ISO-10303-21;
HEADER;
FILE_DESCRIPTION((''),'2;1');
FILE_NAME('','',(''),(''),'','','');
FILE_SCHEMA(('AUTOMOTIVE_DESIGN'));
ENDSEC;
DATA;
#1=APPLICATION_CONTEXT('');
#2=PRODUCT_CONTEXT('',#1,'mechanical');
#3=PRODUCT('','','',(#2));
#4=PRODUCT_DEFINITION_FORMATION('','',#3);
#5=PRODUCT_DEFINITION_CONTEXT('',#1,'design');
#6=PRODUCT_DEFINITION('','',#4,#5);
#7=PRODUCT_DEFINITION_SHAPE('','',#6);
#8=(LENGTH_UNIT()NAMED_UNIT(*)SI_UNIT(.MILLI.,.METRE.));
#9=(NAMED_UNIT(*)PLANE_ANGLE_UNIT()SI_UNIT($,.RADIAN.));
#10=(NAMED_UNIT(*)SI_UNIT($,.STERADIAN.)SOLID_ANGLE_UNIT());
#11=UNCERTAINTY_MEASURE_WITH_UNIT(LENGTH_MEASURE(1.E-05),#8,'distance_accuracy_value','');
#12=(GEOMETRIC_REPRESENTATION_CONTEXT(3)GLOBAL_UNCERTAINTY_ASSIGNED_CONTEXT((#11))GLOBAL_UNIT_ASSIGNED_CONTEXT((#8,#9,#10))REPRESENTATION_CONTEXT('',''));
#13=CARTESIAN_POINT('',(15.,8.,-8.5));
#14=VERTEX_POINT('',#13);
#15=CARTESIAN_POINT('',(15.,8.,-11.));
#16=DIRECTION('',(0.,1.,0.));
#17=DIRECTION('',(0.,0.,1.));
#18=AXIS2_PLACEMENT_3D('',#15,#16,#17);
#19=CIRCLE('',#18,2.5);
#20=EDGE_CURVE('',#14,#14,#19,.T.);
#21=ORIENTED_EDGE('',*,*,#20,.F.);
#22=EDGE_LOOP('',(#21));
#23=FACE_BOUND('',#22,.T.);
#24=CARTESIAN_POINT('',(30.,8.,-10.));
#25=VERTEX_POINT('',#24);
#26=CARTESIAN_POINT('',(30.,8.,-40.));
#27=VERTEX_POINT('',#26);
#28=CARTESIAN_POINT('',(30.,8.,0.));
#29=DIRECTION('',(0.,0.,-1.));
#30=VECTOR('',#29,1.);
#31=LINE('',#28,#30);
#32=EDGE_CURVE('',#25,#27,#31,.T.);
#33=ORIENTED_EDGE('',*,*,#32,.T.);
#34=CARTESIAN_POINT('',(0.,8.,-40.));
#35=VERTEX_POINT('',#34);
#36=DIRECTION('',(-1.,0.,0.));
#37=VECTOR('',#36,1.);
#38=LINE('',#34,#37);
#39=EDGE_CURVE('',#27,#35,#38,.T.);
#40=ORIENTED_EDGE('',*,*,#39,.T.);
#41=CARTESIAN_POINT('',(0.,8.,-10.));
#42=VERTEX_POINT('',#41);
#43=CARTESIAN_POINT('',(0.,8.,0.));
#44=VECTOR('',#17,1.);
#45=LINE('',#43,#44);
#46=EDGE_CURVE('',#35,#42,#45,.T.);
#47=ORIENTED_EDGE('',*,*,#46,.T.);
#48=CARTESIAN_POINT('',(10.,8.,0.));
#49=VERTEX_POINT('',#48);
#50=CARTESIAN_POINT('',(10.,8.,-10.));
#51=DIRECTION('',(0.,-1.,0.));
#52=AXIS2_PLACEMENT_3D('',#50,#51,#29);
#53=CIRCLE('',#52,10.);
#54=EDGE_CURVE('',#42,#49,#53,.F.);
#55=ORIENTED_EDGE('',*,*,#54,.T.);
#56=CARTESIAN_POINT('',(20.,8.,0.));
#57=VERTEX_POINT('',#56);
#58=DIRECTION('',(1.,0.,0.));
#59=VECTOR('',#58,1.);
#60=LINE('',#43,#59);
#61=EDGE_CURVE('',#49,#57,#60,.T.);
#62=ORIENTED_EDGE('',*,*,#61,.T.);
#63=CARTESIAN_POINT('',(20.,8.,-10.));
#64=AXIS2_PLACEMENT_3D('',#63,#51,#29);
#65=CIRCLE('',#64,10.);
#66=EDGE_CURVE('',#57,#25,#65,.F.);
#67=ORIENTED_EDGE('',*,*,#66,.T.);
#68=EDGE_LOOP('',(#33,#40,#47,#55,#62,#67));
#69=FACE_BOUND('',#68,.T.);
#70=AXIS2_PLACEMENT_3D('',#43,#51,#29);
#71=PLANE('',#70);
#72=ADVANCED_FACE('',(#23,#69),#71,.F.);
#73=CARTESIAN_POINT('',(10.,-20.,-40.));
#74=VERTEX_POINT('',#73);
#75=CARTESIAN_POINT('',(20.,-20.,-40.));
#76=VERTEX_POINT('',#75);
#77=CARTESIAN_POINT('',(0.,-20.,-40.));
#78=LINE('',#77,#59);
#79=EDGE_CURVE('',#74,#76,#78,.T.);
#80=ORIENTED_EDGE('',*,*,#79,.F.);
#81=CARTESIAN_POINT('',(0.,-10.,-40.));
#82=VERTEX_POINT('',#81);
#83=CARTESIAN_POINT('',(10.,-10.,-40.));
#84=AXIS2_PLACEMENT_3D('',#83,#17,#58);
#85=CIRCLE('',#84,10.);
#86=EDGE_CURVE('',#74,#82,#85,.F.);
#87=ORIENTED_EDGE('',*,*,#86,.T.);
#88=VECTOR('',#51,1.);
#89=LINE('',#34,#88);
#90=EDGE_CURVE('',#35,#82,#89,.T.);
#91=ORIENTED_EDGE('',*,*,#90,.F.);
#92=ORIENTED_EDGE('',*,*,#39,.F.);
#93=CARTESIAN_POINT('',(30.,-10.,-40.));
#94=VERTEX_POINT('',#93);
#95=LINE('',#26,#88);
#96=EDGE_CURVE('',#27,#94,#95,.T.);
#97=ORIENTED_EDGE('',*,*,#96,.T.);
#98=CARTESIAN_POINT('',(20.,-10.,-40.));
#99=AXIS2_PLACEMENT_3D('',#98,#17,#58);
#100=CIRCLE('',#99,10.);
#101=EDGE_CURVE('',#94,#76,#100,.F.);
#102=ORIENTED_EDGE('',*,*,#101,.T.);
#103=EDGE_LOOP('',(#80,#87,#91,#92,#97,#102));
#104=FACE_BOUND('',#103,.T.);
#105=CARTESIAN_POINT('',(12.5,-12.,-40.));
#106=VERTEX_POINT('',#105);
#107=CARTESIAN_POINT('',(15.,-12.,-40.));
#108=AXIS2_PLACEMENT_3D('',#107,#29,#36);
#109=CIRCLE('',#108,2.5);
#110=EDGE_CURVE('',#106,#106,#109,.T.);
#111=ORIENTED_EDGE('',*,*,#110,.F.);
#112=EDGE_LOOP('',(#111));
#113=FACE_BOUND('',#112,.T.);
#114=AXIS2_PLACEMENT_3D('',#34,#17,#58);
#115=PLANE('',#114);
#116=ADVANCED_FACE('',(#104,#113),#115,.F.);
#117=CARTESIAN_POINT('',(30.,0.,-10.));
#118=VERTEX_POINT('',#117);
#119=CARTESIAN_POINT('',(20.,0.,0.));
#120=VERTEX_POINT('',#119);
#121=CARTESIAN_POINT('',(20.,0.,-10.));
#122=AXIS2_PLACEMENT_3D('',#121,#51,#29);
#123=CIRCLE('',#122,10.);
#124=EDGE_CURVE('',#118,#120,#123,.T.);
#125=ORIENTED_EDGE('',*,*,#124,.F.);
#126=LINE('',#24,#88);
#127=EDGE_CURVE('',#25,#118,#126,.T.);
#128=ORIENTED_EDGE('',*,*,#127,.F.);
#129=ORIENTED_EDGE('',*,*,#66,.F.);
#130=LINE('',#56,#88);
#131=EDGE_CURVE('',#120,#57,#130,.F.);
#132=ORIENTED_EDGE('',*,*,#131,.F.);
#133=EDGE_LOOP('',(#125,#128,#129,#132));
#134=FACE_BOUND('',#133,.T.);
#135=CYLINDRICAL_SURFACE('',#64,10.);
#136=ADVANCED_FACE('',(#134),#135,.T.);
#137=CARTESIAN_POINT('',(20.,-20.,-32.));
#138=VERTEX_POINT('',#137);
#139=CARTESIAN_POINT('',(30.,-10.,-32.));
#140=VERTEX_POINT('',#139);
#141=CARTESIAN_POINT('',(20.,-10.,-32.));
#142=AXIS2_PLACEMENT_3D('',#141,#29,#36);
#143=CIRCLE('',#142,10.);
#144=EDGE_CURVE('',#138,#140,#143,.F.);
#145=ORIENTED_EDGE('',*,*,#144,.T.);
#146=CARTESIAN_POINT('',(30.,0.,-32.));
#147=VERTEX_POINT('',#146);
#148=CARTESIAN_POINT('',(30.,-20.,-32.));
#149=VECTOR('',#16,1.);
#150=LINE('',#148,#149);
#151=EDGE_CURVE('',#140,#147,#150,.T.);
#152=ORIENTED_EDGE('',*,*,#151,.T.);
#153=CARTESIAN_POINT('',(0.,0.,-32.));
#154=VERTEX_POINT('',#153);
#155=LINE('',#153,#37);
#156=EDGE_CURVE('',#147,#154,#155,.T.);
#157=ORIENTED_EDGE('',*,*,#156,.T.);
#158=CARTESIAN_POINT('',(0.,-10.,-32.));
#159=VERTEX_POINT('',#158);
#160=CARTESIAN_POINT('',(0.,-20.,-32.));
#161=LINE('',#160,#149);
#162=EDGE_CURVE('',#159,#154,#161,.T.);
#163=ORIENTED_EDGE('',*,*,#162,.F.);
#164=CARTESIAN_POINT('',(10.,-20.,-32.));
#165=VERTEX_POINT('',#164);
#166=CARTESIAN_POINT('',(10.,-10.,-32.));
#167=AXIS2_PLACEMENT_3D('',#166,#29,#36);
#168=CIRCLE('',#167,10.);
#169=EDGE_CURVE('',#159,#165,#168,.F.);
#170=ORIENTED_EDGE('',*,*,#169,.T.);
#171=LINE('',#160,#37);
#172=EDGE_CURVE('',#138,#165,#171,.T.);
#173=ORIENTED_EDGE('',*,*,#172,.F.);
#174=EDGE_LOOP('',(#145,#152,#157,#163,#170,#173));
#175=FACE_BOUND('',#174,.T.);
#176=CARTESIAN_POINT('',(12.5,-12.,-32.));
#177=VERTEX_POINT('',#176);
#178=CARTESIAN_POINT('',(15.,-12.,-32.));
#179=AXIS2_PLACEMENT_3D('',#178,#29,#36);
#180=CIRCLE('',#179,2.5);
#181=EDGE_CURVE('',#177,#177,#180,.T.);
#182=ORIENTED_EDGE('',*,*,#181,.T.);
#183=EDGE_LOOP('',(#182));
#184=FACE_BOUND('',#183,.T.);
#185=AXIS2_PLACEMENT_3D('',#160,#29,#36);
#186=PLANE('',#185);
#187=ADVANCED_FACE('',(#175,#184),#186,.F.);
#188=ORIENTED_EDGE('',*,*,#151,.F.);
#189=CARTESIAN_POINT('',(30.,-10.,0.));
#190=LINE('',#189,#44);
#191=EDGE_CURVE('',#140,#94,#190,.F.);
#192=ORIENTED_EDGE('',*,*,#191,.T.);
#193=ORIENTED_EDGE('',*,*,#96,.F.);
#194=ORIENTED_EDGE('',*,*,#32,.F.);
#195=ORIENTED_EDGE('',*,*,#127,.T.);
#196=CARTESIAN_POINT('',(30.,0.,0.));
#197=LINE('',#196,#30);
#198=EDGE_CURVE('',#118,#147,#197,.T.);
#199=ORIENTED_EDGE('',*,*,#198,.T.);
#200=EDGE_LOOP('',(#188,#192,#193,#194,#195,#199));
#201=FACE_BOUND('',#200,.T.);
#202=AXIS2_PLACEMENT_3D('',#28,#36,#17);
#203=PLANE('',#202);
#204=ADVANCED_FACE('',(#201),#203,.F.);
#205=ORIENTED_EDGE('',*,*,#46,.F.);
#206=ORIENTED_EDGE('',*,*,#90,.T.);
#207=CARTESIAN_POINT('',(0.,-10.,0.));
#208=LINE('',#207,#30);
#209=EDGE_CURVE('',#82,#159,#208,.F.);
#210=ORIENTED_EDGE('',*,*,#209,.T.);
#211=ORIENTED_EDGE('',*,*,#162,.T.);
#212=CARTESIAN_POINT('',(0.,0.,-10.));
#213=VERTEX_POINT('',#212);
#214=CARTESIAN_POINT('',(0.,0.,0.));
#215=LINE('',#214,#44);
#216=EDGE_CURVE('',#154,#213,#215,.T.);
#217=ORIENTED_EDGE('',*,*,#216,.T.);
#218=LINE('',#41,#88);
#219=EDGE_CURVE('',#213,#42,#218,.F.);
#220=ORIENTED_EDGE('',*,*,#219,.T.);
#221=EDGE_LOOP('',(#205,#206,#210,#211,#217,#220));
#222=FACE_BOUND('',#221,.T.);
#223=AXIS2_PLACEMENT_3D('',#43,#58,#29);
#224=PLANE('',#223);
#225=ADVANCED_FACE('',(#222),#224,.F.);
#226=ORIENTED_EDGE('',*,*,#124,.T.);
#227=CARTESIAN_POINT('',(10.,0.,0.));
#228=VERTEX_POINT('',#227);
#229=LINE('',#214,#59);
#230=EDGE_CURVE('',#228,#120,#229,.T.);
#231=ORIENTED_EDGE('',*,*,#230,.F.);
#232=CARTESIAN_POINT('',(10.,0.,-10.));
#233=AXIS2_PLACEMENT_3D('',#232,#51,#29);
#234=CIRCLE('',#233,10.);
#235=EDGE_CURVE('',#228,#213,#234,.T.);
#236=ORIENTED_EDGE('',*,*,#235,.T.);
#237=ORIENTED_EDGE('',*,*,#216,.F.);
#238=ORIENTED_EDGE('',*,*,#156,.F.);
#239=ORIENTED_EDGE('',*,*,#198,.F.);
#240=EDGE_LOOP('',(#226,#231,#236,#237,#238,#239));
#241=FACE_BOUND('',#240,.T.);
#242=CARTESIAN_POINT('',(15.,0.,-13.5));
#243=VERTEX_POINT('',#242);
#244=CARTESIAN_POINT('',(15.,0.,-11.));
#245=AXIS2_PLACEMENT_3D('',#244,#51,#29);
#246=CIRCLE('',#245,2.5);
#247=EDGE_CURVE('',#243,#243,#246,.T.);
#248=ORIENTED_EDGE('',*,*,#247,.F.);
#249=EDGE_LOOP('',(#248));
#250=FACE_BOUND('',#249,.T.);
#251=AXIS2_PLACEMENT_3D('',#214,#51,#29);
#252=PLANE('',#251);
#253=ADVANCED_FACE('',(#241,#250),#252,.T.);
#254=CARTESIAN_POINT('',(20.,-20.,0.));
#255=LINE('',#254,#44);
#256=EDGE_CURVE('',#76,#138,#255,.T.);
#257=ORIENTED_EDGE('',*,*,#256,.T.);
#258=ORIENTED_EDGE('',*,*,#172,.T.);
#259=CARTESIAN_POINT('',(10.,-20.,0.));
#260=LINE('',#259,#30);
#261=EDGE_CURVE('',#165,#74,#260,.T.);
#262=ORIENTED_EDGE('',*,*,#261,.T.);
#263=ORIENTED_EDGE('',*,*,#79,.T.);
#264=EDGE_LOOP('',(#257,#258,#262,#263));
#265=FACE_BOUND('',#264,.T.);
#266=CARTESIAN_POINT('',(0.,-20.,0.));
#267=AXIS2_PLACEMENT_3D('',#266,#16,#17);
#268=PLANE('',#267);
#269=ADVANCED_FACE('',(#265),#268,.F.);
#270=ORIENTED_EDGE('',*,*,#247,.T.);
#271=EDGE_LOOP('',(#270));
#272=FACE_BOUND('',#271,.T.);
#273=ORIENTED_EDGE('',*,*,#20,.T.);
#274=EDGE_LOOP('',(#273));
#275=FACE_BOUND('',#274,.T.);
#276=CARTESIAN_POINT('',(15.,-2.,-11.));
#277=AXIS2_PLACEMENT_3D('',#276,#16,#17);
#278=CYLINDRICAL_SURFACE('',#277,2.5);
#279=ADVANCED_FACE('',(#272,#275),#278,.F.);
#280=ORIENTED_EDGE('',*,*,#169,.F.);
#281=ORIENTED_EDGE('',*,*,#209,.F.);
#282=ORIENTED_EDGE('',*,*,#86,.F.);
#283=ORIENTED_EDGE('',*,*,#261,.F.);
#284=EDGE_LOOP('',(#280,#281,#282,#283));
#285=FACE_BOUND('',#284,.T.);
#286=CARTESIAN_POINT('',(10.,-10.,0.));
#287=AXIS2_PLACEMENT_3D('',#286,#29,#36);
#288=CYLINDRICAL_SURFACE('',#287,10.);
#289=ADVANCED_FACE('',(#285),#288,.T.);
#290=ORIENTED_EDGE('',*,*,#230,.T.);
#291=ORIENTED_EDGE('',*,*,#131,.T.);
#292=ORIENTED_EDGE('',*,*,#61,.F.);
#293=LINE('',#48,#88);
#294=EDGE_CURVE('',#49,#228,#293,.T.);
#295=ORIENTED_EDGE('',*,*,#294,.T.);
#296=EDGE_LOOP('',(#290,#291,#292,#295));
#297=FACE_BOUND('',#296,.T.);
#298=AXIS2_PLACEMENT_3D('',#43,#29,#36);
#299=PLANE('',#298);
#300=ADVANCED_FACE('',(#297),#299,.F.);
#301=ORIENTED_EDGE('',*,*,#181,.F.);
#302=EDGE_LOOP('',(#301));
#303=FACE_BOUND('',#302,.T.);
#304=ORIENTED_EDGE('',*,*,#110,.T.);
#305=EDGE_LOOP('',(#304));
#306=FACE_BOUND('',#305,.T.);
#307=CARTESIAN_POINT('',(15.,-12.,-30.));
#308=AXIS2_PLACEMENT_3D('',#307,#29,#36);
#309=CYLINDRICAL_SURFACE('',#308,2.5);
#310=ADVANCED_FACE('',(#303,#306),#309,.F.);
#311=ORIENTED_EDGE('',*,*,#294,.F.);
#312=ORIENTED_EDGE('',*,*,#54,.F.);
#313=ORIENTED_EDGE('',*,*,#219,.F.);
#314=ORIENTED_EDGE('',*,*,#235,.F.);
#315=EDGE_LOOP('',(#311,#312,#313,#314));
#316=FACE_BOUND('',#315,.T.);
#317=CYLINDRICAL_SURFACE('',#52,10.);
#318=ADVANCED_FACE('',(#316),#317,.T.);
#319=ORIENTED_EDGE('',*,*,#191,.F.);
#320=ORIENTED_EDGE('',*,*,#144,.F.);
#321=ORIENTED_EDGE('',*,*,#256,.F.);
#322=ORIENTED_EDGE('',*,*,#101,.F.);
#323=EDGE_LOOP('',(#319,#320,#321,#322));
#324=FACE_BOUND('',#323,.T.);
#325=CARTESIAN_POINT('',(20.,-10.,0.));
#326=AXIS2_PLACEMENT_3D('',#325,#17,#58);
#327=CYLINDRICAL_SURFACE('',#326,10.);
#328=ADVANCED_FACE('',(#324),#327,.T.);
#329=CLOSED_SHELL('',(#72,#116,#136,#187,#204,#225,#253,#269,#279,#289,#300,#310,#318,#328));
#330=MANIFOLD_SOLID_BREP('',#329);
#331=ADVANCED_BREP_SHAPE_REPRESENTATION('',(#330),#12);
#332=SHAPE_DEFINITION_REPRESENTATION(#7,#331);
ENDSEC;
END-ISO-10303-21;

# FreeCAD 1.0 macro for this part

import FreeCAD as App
import Part
import Sketcher
Q = App.Units.Quantity


def edges_at(feature, points):
    """Names of the edges that pass closest to the given points."""
    edges = feature.Shape.Edges
    near = lambda p: min(range(len(edges)), key=lambda i: edges[i].distToShape(Part.Vertex(*p))[0])
    return sorted({f"Edge{near(p) + 1}" for p in points})


def add_polygon(sketch, points):
    """Adds a closed chain of lines whose ends are joined by coincident constraints."""
    first, n = sketch.GeometryCount, len(points)
    for a, b in zip(points, points[1:] + points[:1]):
        sketch.addGeometry(Part.LineSegment(App.Vector(*a, 0), App.Vector(*b, 0)), False)
    for i in range(n):
        sketch.addConstraint(Sketcher.Constraint("Coincident", first + i, 2, first + (i + 1) % n, 1))

doc = App.newDocument("Part")
body = doc.addObject("PartDesign::Body", "Body")

sketch1 = body.newObject("Sketcher::SketchObject", "Sketch")
sketch1.AttachmentSupport = (doc.getObject("XZ_Plane"), [""])
sketch1.MapMode = "FlatFace"
add_polygon(sketch1, [(0, -40), (0, 0), (30, 0), (30, -40)])
sketch1.addConstraint(Sketcher.Constraint("Vertical", 0))
sketch1.addConstraint(Sketcher.Constraint("Horizontal", 1))
sketch1.addConstraint(Sketcher.Constraint("Vertical", 2))
sketch1.addConstraint(Sketcher.Constraint("Horizontal", 3))
sketch1.addConstraint(Sketcher.Constraint("Coincident", 0, 2, -1, 1))
sketch1.addConstraint(Sketcher.Constraint("DistanceX", 1, 1, 1, 2, Q("30 mm")))
sketch1.addConstraint(Sketcher.Constraint("DistanceY", 0, 1, 0, 2, Q("40 mm")))
pad1 = body.newObject("PartDesign::Pad", "Pad")
pad1.Profile = sketch1
pad1.Length = 8
pad1.Reversed = True

sketch2 = body.newObject("Sketcher::SketchObject", "Sketch001")
sketch2.AttachmentSupport = (doc.getObject("XZ_Plane"), [""])
sketch2.MapMode = "FlatFace"
add_polygon(sketch2, [(0, -32), (0, -40), (30, -40), (30, -32)])
sketch2.addConstraint(Sketcher.Constraint("Vertical", 0))
sketch2.addConstraint(Sketcher.Constraint("Horizontal", 1))
sketch2.addConstraint(Sketcher.Constraint("Vertical", 2))
sketch2.addConstraint(Sketcher.Constraint("Horizontal", 3))
sketch2.addConstraint(Sketcher.Constraint("PointOnObject", 0, 2, -2))
sketch2.addConstraint(Sketcher.Constraint("DistanceX", 1, 1, 1, 2, Q("30 mm")))
sketch2.addConstraint(Sketcher.Constraint("DistanceY", 0, 2, 0, 1, Q("8 mm")))
sketch2.addConstraint(Sketcher.Constraint("DistanceY", 0, 2, -1, 1, Q("40 mm")))
pad2 = body.newObject("PartDesign::Pad", "Pad001")
pad2.Profile = sketch2
pad2.Length = 20

sketch3 = body.newObject("Sketcher::SketchObject", "Sketch002")
sketch3.AttachmentSupport = (doc.getObject("XZ_Plane"), [""])
sketch3.MapMode = "FlatFace"
sketch3.AttachmentOffset = App.Placement(App.Vector(0, 0, -8), App.Rotation())
sketch3.addGeometry(Part.Circle(App.Vector(15, -11, 0), App.Vector(0, 0, 1), 2.5), False)
sketch3.addConstraint(Sketcher.Constraint("Diameter", 0, Q("5 mm")))
sketch3.addConstraint(Sketcher.Constraint("DistanceX", -1, 1, 0, 3, Q("15 mm")))
sketch3.addConstraint(Sketcher.Constraint("DistanceY", 0, 3, -1, 1, Q("11 mm")))
pocket1 = body.newObject("PartDesign::Pocket", "Pocket")
pocket1.Profile = sketch3
pocket1.Length = 10
pocket1.Reversed = True

sketch4 = body.newObject("Sketcher::SketchObject", "Sketch003")
sketch4.AttachmentSupport = (doc.getObject("XY_Plane"), [""])
sketch4.MapMode = "FlatFace"
sketch4.AttachmentOffset = App.Placement(App.Vector(0, 0, -40), App.Rotation())
sketch4.addGeometry(Part.Circle(App.Vector(15, -12, 0), App.Vector(0, 0, 1), 2.5), False)
sketch4.addConstraint(Sketcher.Constraint("Diameter", 0, Q("5 mm")))
sketch4.addConstraint(Sketcher.Constraint("DistanceX", -1, 1, 0, 3, Q("15 mm")))
sketch4.addConstraint(Sketcher.Constraint("DistanceY", 0, 3, -1, 1, Q("12 mm")))
pocket2 = body.newObject("PartDesign::Pocket", "Pocket001")
pocket2.Profile = sketch4
pocket2.Length = 10
pocket2.Reversed = True
doc.recompute()

fillet = body.newObject("PartDesign::Fillet", "Fillet")
fillet.Base = (pocket2, edges_at(pocket2, [
    (0, -20, -36),
    (30, -20, -36),
    (30, 4, 0),
    (0, 4, 0),
]))
fillet.Radius = 10

doc.recompute()
